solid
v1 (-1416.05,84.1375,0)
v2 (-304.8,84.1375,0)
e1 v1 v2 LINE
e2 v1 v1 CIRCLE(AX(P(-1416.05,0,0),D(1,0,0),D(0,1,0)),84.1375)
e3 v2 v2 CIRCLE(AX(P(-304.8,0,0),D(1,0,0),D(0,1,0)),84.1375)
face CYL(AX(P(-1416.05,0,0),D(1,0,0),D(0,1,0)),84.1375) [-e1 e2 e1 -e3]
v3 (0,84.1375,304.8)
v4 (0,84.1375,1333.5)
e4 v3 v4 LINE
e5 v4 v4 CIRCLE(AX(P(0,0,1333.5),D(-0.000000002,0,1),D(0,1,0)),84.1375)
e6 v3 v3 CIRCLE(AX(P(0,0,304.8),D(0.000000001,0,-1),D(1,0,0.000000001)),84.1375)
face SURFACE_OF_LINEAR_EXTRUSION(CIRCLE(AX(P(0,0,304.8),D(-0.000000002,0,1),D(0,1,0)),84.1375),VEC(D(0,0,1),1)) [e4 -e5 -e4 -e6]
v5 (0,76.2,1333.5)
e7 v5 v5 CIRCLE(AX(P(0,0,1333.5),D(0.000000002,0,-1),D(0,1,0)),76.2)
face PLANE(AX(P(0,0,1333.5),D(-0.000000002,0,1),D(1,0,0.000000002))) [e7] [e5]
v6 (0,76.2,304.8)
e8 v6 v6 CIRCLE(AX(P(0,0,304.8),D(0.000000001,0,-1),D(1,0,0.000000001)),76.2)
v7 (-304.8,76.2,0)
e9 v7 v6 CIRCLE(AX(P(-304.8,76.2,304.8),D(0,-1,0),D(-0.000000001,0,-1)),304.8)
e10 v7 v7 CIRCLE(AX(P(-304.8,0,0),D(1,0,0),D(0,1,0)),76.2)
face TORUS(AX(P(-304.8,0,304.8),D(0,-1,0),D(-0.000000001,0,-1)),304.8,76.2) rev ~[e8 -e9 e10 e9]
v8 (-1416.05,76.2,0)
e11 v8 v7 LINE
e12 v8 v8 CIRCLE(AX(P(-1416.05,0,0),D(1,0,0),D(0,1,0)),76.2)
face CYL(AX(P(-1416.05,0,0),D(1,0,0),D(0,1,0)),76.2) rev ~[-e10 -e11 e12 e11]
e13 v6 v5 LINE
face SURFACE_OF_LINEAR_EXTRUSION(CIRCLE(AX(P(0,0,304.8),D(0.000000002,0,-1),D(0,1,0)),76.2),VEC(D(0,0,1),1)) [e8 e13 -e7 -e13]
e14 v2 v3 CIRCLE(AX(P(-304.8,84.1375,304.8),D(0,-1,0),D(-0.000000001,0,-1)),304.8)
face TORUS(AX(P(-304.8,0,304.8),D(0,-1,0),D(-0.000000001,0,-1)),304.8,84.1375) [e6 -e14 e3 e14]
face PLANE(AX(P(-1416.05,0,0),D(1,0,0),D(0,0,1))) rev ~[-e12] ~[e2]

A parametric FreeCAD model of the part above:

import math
import FreeCAD as App
import Part
import Sketcher

V = App.Vector
Q = App.Units.Quantity

doc = App.newDocument("Part")
body = doc.addObject("PartDesign::Body", "Body")

sketch1 = body.newObject("Sketcher::SketchObject", "Sketch")
sketch1.AttachmentSupport = (doc.getObject("YZ_Plane"), [""])
sketch1.MapMode = "FlatFace"
sketch1.AttachmentOffset = App.Placement(V(0, 0, -55.75 * 25.4), App.Rotation())
sketch1.addGeometry(Part.Circle(V(0, 0, 0), V(0, 0, 1), 84), False)
sketch1.addGeometry(Part.Circle(V(0, 0, 0), V(0, 0, 1), 76), False)
sketch1.addConstraint(Sketcher.Constraint("Coincident", 0, 3, -1, 1))
sketch1.addConstraint(Sketcher.Constraint("Coincident", 1, 3, -1, 1))
sketch1.addConstraint(Sketcher.Constraint("Diameter", 1, Q("6 in")))
sketch1.addConstraint(Sketcher.Constraint("Diameter", 0, Q("6.625 in")))

sketch2 = body.newObject("Sketcher::SketchObject", "Sketch001")
sketch2.AttachmentSupport = (doc.getObject("XZ_Plane"), [""])
sketch2.MapMode = "FlatFace"
sketch2.addGeometry(Part.LineSegment(V(-1416, 0, 0), V(-305, 0, 0)), False)
sketch2.addGeometry(Part.ArcOfCircle(Part.Circle(V(-305, 305, 0), V(0, 0, 1), 305), math.radians(-90), math.radians(0)), False)
sketch2.addGeometry(Part.LineSegment(V(0, 305, 0), V(0, 1334, 0)), False)
sketch2.addConstraint(Sketcher.Constraint("Tangent", 0, 2, 1, 1))
sketch2.addConstraint(Sketcher.Constraint("Tangent", 1, 2, 2, 1))
sketch2.addConstraint(Sketcher.Constraint("Horizontal", 0))
sketch2.addConstraint(Sketcher.Constraint("Vertical", 2))
sketch2.addConstraint(Sketcher.Constraint("PointOnObject", 0, 1, -1))
sketch2.addConstraint(Sketcher.Constraint("PointOnObject", 1, 2, -2))
sketch2.addConstraint(Sketcher.Constraint("Radius", 1, Q("12 in")))
sketch2.addConstraint(Sketcher.Constraint("DistanceY", 2, 1, 2, 2, Q("40.5 in")))
sketch2.addConstraint(Sketcher.Constraint("DistanceX", 0, 1, 0, 2, Q("43.75 in")))
doc.recompute()

additivepipe = body.newObject("PartDesign::AdditivePipe", "AdditivePipe")
additivepipe.Profile = sketch1
additivepipe.Spine = (sketch2, ["Edge1", "Edge2", "Edge3"])

doc.recompute()
